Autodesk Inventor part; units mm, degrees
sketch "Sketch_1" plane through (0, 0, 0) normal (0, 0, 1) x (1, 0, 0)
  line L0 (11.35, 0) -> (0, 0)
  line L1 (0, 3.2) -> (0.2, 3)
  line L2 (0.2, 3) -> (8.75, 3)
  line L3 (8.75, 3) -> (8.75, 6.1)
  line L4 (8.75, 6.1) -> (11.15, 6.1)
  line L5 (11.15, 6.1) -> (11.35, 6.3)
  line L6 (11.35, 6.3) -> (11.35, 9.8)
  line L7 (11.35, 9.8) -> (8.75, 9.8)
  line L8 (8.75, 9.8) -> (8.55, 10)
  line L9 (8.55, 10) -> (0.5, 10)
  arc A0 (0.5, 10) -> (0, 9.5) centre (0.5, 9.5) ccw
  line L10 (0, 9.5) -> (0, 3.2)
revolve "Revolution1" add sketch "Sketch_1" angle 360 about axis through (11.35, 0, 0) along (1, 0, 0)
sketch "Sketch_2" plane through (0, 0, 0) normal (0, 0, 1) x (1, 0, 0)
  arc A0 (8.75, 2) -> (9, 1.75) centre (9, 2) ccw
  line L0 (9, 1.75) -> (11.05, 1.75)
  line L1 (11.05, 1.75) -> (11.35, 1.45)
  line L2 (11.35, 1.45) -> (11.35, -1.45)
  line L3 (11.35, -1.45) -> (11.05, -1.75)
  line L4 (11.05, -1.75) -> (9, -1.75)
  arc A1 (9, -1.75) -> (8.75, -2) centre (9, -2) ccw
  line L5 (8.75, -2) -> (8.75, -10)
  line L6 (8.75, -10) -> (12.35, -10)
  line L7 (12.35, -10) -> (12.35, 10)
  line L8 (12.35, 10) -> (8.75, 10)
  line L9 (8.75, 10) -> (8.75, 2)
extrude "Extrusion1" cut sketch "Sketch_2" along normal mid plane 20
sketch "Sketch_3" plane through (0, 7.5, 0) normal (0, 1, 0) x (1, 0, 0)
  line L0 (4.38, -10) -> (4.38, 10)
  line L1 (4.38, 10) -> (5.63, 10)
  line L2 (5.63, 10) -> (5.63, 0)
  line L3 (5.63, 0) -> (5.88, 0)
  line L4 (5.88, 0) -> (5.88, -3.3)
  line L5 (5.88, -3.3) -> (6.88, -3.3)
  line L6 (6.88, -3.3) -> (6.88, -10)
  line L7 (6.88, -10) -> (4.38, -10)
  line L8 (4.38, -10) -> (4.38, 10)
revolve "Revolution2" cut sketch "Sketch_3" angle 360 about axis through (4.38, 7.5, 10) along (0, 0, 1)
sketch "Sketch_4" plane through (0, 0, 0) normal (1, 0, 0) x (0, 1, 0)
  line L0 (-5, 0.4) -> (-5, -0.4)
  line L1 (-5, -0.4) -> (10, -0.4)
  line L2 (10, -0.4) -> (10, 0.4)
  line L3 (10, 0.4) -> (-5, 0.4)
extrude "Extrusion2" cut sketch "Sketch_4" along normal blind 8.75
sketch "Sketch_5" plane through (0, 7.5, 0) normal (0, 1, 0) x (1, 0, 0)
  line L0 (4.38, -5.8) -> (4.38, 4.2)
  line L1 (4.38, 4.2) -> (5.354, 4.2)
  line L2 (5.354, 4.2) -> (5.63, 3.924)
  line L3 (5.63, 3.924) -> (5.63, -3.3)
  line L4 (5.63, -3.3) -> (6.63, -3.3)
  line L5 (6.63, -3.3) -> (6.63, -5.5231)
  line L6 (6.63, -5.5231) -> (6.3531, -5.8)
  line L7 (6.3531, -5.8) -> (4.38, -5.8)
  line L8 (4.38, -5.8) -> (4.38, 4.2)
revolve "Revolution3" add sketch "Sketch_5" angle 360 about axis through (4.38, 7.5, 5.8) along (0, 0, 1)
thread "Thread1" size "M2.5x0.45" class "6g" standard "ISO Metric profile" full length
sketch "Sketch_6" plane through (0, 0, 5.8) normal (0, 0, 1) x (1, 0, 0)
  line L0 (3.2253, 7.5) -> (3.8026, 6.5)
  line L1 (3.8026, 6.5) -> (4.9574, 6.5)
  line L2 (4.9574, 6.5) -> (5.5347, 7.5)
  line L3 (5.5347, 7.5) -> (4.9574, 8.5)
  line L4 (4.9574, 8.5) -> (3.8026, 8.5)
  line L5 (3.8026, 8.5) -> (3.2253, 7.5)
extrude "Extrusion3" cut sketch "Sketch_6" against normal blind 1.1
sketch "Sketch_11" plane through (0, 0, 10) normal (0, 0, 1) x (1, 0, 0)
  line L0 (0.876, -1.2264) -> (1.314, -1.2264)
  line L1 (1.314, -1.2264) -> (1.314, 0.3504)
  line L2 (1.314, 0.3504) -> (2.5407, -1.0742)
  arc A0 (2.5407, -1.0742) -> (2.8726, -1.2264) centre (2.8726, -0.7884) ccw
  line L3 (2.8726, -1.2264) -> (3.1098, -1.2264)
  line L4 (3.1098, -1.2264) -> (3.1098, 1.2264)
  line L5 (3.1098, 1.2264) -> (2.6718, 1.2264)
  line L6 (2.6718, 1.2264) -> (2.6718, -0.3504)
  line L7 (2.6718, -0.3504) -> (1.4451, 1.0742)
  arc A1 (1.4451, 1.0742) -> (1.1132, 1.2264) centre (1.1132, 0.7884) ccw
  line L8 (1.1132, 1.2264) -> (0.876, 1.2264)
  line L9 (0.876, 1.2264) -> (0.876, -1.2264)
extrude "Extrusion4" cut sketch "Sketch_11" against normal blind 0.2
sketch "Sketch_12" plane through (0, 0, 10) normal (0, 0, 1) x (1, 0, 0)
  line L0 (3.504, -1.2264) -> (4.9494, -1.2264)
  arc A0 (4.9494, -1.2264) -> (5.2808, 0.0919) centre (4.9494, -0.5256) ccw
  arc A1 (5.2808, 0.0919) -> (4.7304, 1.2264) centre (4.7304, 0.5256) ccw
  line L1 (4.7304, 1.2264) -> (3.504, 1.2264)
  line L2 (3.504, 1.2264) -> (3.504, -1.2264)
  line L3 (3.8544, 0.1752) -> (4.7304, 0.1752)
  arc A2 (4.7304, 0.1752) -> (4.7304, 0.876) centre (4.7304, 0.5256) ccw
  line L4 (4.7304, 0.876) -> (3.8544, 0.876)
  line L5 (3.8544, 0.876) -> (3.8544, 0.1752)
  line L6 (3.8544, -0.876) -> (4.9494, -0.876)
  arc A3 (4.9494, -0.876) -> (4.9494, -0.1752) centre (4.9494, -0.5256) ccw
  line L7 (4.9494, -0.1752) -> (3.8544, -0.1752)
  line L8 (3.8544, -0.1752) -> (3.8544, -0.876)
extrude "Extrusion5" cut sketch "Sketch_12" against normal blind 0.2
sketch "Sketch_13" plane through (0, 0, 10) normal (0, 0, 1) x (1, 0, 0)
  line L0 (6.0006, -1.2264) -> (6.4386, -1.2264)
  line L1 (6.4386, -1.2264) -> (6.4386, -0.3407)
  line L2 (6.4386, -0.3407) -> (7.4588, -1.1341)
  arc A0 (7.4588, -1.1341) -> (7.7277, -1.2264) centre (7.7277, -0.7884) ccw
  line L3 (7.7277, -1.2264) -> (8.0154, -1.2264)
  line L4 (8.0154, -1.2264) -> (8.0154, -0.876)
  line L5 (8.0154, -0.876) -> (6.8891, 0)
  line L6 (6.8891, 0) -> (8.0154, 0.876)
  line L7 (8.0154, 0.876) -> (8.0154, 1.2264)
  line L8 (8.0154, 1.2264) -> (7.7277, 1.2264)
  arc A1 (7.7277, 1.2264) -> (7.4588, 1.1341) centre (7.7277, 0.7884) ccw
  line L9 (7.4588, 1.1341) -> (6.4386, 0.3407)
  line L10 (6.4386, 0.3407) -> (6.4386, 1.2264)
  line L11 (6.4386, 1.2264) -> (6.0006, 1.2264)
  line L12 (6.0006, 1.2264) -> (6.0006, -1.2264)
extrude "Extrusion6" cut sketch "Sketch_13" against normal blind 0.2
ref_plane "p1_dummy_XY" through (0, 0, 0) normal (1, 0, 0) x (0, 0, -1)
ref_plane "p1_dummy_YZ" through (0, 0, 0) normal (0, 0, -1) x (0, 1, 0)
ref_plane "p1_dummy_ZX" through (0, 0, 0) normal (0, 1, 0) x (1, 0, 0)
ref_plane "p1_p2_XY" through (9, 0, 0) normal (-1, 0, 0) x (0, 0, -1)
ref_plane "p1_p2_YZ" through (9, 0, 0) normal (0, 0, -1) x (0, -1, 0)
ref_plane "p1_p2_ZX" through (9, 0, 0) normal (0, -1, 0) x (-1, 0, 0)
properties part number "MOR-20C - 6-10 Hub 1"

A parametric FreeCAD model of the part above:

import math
import FreeCAD as App
import Part
import Sketcher
from FreeCAD import Vector
Q = App.Units.Quantity


def add_polygon(sketch, points):
    """Adds a closed chain of lines whose ends are joined by coincident constraints."""
    first, n = sketch.GeometryCount, len(points)
    for a, b in zip(points, points[1:] + points[:1]):
        sketch.addGeometry(Part.LineSegment(App.Vector(*a, 0), App.Vector(*b, 0)), False)
    for i in range(n):
        sketch.addConstraint(Sketcher.Constraint("Coincident", first + i, 2, first + (i + 1) % n, 1))

doc = App.newDocument("Part")
params = doc.addObject("Spreadsheet::Sheet", "Params")
for row, (alias, value) in enumerate([
    ("sketch1_radius", "0.5 mm"),
    ("sketch1_width", "2.4 mm"),
    ("sketch1_width2", "2.6 mm"),
    ("sketch1_height", "6.3 mm"),
    ("sketch1_height2", "3.1 mm"),
    ("revolution_angle", "360 deg"),
    ("sketch2_height", "8 mm"),
    ("sketch2_height2", "20 mm"),
    ("sketch2_radius", "0.25 mm"),
    ("sketch2_width", "3.6 mm"),
    ("sketch2_height3", "2.9 mm"),
    ("pocket1_length", "20 mm"),
    ("sketch3_width", "1 mm"),
    ("sketch3_height", "20 mm"),
    ("sketch3_height2", "10 mm"),
    ("sketch3_width2", "2.5 mm"),
    ("sketch3_height3", "6.7 mm"),
    ("groove_angle", "360 deg"),
    ("sketch4_width", "15 mm"),
    ("sketch4_height", "0.8 mm"),
    ("pocket2_length", "8.75 mm"),
    ("sketch5_width", "1 mm"),
    ("sketch5_height", "10 mm"),
    ("revolution2_angle", "360 deg"),
    ("pocket3_length", "1.1 mm"),
    ("sketch7_length", "1.88 mm"),
    ("pocket4_length", "0.2 mm"),
    ("pocket5_length", "0.2 mm"),
    ("pocket6_length", "0.2 mm"),
], start=1):
    params.set(f"A{row}", alias)
    params.set(f"B{row}", "=" + value)
    params.setAlias(f"B{row}", alias)

body = doc.addObject("PartDesign::Body", "Body")

sketch1 = doc.addObject("Sketcher::SketchObject", "Sketch")
body.addObject(sketch1)
sketch1.AttachmentSupport = (doc.XY_Plane, [""])
sketch1.MapMode = "FlatFace"
sketch1.addGeometry([
    Part.LineSegment(Vector(0, 9.5, 0), Vector(0, 3.2, 0)),
    Part.LineSegment(Vector(0, 3.2, 0), Vector(0.2, 3, 0)),
    Part.LineSegment(Vector(0.2, 3, 0), Vector(8.75, 3, 0)),
    Part.LineSegment(Vector(8.75, 3, 0), Vector(8.75, 6.1, 0)),
    Part.LineSegment(Vector(8.75, 6.1, 0), Vector(11.15, 6.1, 0)),
    Part.LineSegment(Vector(11.15, 6.1, 0), Vector(11.35, 6.3, 0)),
    Part.LineSegment(Vector(11.35, 6.3, 0), Vector(11.35, 9.8, 0)),
    Part.LineSegment(Vector(11.35, 9.8, 0), Vector(8.75, 9.8, 0)),
    Part.LineSegment(Vector(8.75, 9.8, 0), Vector(8.55, 10, 0)),
    Part.LineSegment(Vector(8.55, 10, 0), Vector(0.5, 10, 0)),
    Part.ArcOfCircle(Part.Circle(Vector(0.5, 9.5, 0), Vector(0, 0, 1), 0.5), math.radians(90), math.radians(180)),
], False)
sketch1.addConstraint([
    Sketcher.Constraint("Coincident", 0, 2, 1, 1),
    Sketcher.Constraint("Coincident", 1, 2, 2, 1),
    Sketcher.Constraint("Coincident", 2, 2, 3, 1),
    Sketcher.Constraint("Coincident", 3, 2, 4, 1),
    Sketcher.Constraint("Coincident", 4, 2, 5, 1),
    Sketcher.Constraint("Coincident", 5, 2, 6, 1),
    Sketcher.Constraint("Coincident", 6, 2, 7, 1),
    Sketcher.Constraint("Coincident", 7, 2, 8, 1),
    Sketcher.Constraint("Coincident", 8, 2, 9, 1),
    Sketcher.Constraint("Tangent", 9, 2, 10, 1),
    Sketcher.Constraint("Tangent", 10, 2, 0, 1),
    Sketcher.Constraint("Vertical", 0),
    Sketcher.Constraint("Horizontal", 2),
    Sketcher.Constraint("Vertical", 3),
    Sketcher.Constraint("Horizontal", 4),
    Sketcher.Constraint("Vertical", 6),
    Sketcher.Constraint("Horizontal", 7),
    Sketcher.Constraint("Horizontal", 9),
    Sketcher.Constraint("PointOnObject", 0, 2, -2),
    Sketcher.Constraint("Perpendicular", 1, 5),
    Sketcher.Constraint("Perpendicular", 5, 8),
    Sketcher.Constraint("Vertical", 3, 2, 7, 2),
    Sketcher.Constraint("Equal", 1, 5),
    Sketcher.Constraint("Equal", 5, 8),
    Sketcher.Constraint("Radius", 10, 0.5),
    Sketcher.Constraint("Angle", 1, Q("-45 deg")),
    Sketcher.Constraint("DistanceX", 4, 1, 4, 2, 2.4),
    Sketcher.Constraint("DistanceX", 7, 2, 7, 1, 2.6),
    Sketcher.Constraint("DistanceY", 0, 2, 0, 1, 6.3),
    Sketcher.Constraint("DistanceY", 3, 1, 3, 2, 3.1),
    Sketcher.Constraint("DistanceY", -1, 1, 1, 2, 3.0),
    Sketcher.Constraint("DistanceX", 2, 1, 2, 2, 8.55),
])
sketch1.setExpression("Constraints[24]", "Params.sketch1_radius")
sketch1.setExpression("Constraints[26]", "Params.sketch1_width")
sketch1.setExpression("Constraints[27]", "Params.sketch1_width2")
sketch1.setExpression("Constraints[28]", "Params.sketch1_height")
sketch1.setExpression("Constraints[29]", "Params.sketch1_height2")
revolution = doc.addObject("PartDesign::Revolution", "Revolution")
body.addObject(revolution)
revolution.Profile = sketch1
revolution.ReferenceAxis = (sketch1, ["H_Axis"])
revolution.setExpression("Angle", "Params.revolution_angle")

sketch2 = doc.addObject("Sketcher::SketchObject", "Sketch001")
body.addObject(sketch2)
sketch2.AttachmentSupport = (doc.XY_Plane, [""])
sketch2.MapMode = "FlatFace"
sketch2.addGeometry([
    Part.LineSegment(Vector(8.75, 10, 0), Vector(8.75, 2, 0)),
    Part.ArcOfCircle(Part.Circle(Vector(9, 2, 0), Vector(0, 0, 1), 0.25), math.radians(180), math.radians(270)),
    Part.LineSegment(Vector(9, 1.75, 0), Vector(11.05, 1.75, 0)),
    Part.LineSegment(Vector(11.05, 1.75, 0), Vector(11.35, 1.45, 0)),
    Part.LineSegment(Vector(11.35, 1.45, 0), Vector(11.35, -1.45, 0)),
    Part.LineSegment(Vector(11.35, -1.45, 0), Vector(11.05, -1.75, 0)),
    Part.LineSegment(Vector(11.05, -1.75, 0), Vector(9, -1.75, 0)),
    Part.ArcOfCircle(Part.Circle(Vector(9, -2, 0), Vector(0, 0, 1), 0.25), math.radians(90), math.radians(180)),
    Part.LineSegment(Vector(8.75, -2, 0), Vector(8.75, -10, 0)),
    Part.LineSegment(Vector(8.75, -10, 0), Vector(12.35, -10, 0)),
    Part.LineSegment(Vector(12.35, -10, 0), Vector(12.35, 10, 0)),
    Part.LineSegment(Vector(12.35, 10, 0), Vector(8.75, 10, 0)),
], False)
sketch2.addConstraint([
    Sketcher.Constraint("Tangent", 0, 2, 1, 1),
    Sketcher.Constraint("Tangent", 1, 2, 2, 1),
    Sketcher.Constraint("Coincident", 2, 2, 3, 1),
    Sketcher.Constraint("Coincident", 3, 2, 4, 1),
    Sketcher.Constraint("Coincident", 4, 2, 5, 1),
    Sketcher.Constraint("Coincident", 5, 2, 6, 1),
    Sketcher.Constraint("Tangent", 6, 2, 7, 1),
    Sketcher.Constraint("Tangent", 7, 2, 8, 1),
    Sketcher.Constraint("Coincident", 8, 2, 9, 1),
    Sketcher.Constraint("Coincident", 9, 2, 10, 1),
    Sketcher.Constraint("Coincident", 10, 2, 11, 1),
    Sketcher.Constraint("Coincident", 11, 2, 0, 1),
    Sketcher.Constraint("Vertical", 0),
    Sketcher.Constraint("Horizontal", 2),
    Sketcher.Constraint("Vertical", 4),
    Sketcher.Constraint("Horizontal", 6),
    Sketcher.Constraint("Vertical", 8),
    Sketcher.Constraint("Horizontal", 9),
    Sketcher.Constraint("Vertical", 10),
    Sketcher.Constraint("Horizontal", 11),
    Sketcher.Constraint("Equal", 1, 7),
    Sketcher.Constraint("Symmetric", 1, 3, 7, 3, -1),
    Sketcher.Constraint("Perpendicular", 3, 5),
    Sketcher.Constraint("Vertical", 2, 2, 5, 2),
    Sketcher.Constraint("Equal", 0, 8),
    Sketcher.Constraint("Equal", 3, 5),
    Sketcher.Constraint("DistanceY", 0, 2, 0, 1, 8.0),
    Sketcher.Constraint("DistanceY", 10, 1, 10, 2, 20.0),
    Sketcher.Constraint("Radius", 1, 0.25),
    Sketcher.Constraint("DistanceX", 9, 1, 9, 2, 3.6),
    Sketcher.Constraint("DistanceY", 4, 2, 4, 1, 2.9),
    Sketcher.Constraint("DistanceX", -1, 1, 1, 3, 9.0),
    Sketcher.Constraint("DistanceX", 4, 2, 9, 2, 1.0),
])
sketch2.setExpression("Constraints[26]", "Params.sketch2_height")
sketch2.setExpression("Constraints[27]", "Params.sketch2_height2")
sketch2.setExpression("Constraints[28]", "Params.sketch2_radius")
sketch2.setExpression("Constraints[29]", "Params.sketch2_width")
sketch2.setExpression("Constraints[30]", "Params.sketch2_height3")
pocket1 = doc.addObject("PartDesign::Pocket", "Pocket")
body.addObject(pocket1)
pocket1.Profile = sketch2
pocket1.setExpression("Length", "Params.pocket1_length")
pocket1.Midplane = True

sketch3 = doc.addObject("Sketcher::SketchObject", "Sketch002")
body.addObject(sketch3)
sketch3.AttachmentSupport = (doc.XZ_Plane, [""])
sketch3.MapMode = "FlatFace"
sketch3.AttachmentOffset = App.Placement(Vector(0, 0, -7.5), App.Rotation())
add_polygon(sketch3, [(4.38, -10), (4.38, 10), (6.88, 10), (6.88, 3.3), (5.88, 3.3), (5.88, 0), (5.63, 0), (5.63, -10)])
sketch3.addGeometry(Part.LineSegment(Vector(4.38, -10, 0), Vector(4.38, 10, 0)), True)
sketch3.addConstraint([
    Sketcher.Constraint("Vertical", 0),
    Sketcher.Constraint("Horizontal", 1),
    Sketcher.Constraint("Vertical", 2),
    Sketcher.Constraint("Horizontal", 3),
    Sketcher.Constraint("Vertical", 4),
    Sketcher.Constraint("Horizontal", 5),
    Sketcher.Constraint("Vertical", 6),
    Sketcher.Constraint("Horizontal", 7),
    Sketcher.Constraint("Vertical", 8),
    Sketcher.Constraint("Coincident", 8, 1, 7, 2),
    Sketcher.Constraint("PointOnObject", 4, 2, -1),
    Sketcher.Constraint("Horizontal", 1, 2, 8, 2),
    Sketcher.Constraint("DistanceX", 3, 2, 3, 1, 1.0),
    Sketcher.Constraint("DistanceY", 0, 1, 0, 2, 20.0),
    Sketcher.Constraint("DistanceY", 6, 2, 6, 1, 10.0),
    Sketcher.Constraint("DistanceX", 1, 1, 1, 2, 2.5),
    Sketcher.Constraint("DistanceY", 2, 2, 2, 1, 6.7),
    Sketcher.Constraint("DistanceX", 5, 2, 5, 1, 0.25),
    Sketcher.Constraint("DistanceX", -1, 1, 0, 2, 4.38),
])
sketch3.setExpression("Constraints[20]", "Params.sketch3_width")
sketch3.setExpression("Constraints[21]", "Params.sketch3_height")
sketch3.setExpression("Constraints[22]", "Params.sketch3_height2")
sketch3.setExpression("Constraints[23]", "Params.sketch3_width2")
sketch3.setExpression("Constraints[24]", "Params.sketch3_height3")
groove = doc.addObject("PartDesign::Groove", "Groove")
body.addObject(groove)
groove.Profile = sketch3
groove.ReferenceAxis = (sketch3, ["Axis0"])
groove.setExpression("Angle", "Params.groove_angle")

sketch4 = doc.addObject("Sketcher::SketchObject", "Sketch003")
body.addObject(sketch4)
sketch4.AttachmentSupport = (doc.YZ_Plane, [""])
sketch4.MapMode = "FlatFace"
add_polygon(sketch4, [(10, 0.4), (-5, 0.4), (-5, -0.4), (10, -0.4)])
sketch4.addConstraint([
    Sketcher.Constraint("Horizontal", 0),
    Sketcher.Constraint("Vertical", 1),
    Sketcher.Constraint("Horizontal", 2),
    Sketcher.Constraint("Vertical", 3),
    Sketcher.Constraint("DistanceX", 0, 2, 0, 1, 15.0),
    Sketcher.Constraint("DistanceY", 1, 2, 1, 1, 0.8),
    Sketcher.Constraint("DistanceX", 0, 2, -1, 1, 5.0),
    Sketcher.Constraint("DistanceY", -1, 1, 0, 2, 0.4),
])
sketch4.setExpression("Constraints[8]", "Params.sketch4_width")
sketch4.setExpression("Constraints[9]", "Params.sketch4_height")
pocket2 = doc.addObject("PartDesign::Pocket", "Pocket001")
body.addObject(pocket2)
pocket2.Profile = sketch4
pocket2.setExpression("Length", "Params.pocket2_length")
pocket2.Reversed = True

sketch5 = doc.addObject("Sketcher::SketchObject", "Sketch004")
body.addObject(sketch5)
sketch5.AttachmentSupport = (doc.XZ_Plane, [""])
sketch5.MapMode = "FlatFace"
sketch5.AttachmentOffset = App.Placement(Vector(0, 0, -7.5), App.Rotation())
add_polygon(sketch5, [(4.38, -4.2), (4.38, 5.8), (6.35, 5.8), (6.63, 5.52), (6.63, 3.3), (5.63, 3.3), (5.63, -3.92), (5.35, -4.2)])
sketch5.addGeometry(Part.LineSegment(Vector(4.38, -4.2, 0), Vector(4.38, 5.8, 0)), True)
sketch5.addConstraint([
    Sketcher.Constraint("Vertical", 0),
    Sketcher.Constraint("Horizontal", 1),
    Sketcher.Constraint("Vertical", 3),
    Sketcher.Constraint("Horizontal", 4),
    Sketcher.Constraint("Vertical", 5),
    Sketcher.Constraint("Horizontal", 7),
    Sketcher.Constraint("Vertical", 8),
    Sketcher.Constraint("Coincident", 8, 1, 7, 2),
    Sketcher.Constraint("Perpendicular", 2, 6),
    Sketcher.Constraint("Horizontal", 1, 2, 8, 2),
    Sketcher.Constraint("DistanceX", 4, 2, 4, 1, 1.0),
    Sketcher.Constraint("DistanceY", 0, 1, 0, 2, 10.0),
    Sketcher.Constraint("Angle", 2, Q("-45 deg")),
    Sketcher.Constraint("DistanceY", -1, 1, 0, 2, 5.8),
    Sketcher.Constraint("DistanceY", -1, 1, 3, 2, 3.3),
    Sketcher.Constraint("DistanceX", 1, 1, 1, 2, 1.973),
    Sketcher.Constraint("DistanceX", 7, 2, 7, 1, 0.974),
    Sketcher.Constraint("DistanceY", 3, 2, 3, 1, 2.223),
    Sketcher.Constraint("DistanceX", -1, 1, 0, 2, 4.38),
])
sketch5.setExpression("Constraints[18]", "Params.sketch5_width")
sketch5.setExpression("Constraints[19]", "Params.sketch5_height")
revolution2 = doc.addObject("PartDesign::Revolution", "Revolution001")
body.addObject(revolution2)
revolution2.Profile = sketch5
revolution2.ReferenceAxis = (sketch5, ["Axis0"])
revolution2.setExpression("Angle", "Params.revolution2_angle")

sketch6 = doc.addObject("Sketcher::SketchObject", "Sketch005")
body.addObject(sketch6)
sketch6.AttachmentSupport = (doc.XY_Plane, [""])
sketch6.MapMode = "FlatFace"
sketch6.AttachmentOffset = App.Placement(Vector(0, 0, 5.8), App.Rotation())
add_polygon(sketch6, [(3.8, 8.5), (3.2, 7.5), (3.8, 6.5), (5, 6.5), (5.5, 7.5), (5, 8.5)])
sketch6.addConstraint([
    Sketcher.Constraint("Horizontal", 2),
    Sketcher.Constraint("Horizontal", 5),
    Sketcher.Constraint("Parallel", 0, 3),
    Sketcher.Constraint("Parallel", 1, 4),
    Sketcher.Constraint("Horizontal", 0, 2, 3, 2),
    Sketcher.Constraint("Vertical", 2, 2, 4, 2),
    Sketcher.Constraint("Vertical", 1, 2, 5, 2),
    Sketcher.Constraint("DistanceY", 1, 2, 0, 2, 1.0),
    Sketcher.Constraint("DistanceY", -1, 1, 0, 2, 7.5),
    Sketcher.Constraint("DistanceX", 2, 1, 2, 2, 1.1548),
    Sketcher.Constraint("DistanceX", 0, 2, 2, 2, 1.732),
    Sketcher.Constraint("DistanceX", -1, 1, 0, 2, 3.2253),
])
pocket3 = doc.addObject("PartDesign::Pocket", "Pocket002")
body.addObject(pocket3)
pocket3.Profile = sketch6
pocket3.setExpression("Length", "Params.pocket3_length")

sketch7 = doc.addObject("Sketcher::SketchObject", "Sketch006")
body.addObject(sketch7)
sketch7.AttachmentSupport = (doc.XY_Plane, [""])
sketch7.MapMode = "FlatFace"
sketch7.AttachmentOffset = App.Placement(Vector(0, 0, 10), App.Rotation())
sketch7.addGeometry([
    Part.LineSegment(Vector(0.88, 1.23, 0), Vector(0.88, -1.23, 0)),
    Part.LineSegment(Vector(0.88, -1.23, 0), Vector(1.31, -1.23, 0)),
    Part.LineSegment(Vector(1.31, -1.23, 0), Vector(1.31, 0.35, 0)),
    Part.LineSegment(Vector(1.31, 0.35, 0), Vector(2.54, -1.07, 0)),
    Part.ArcOfCircle(Part.Circle(Vector(2.87, -0.79, 0), Vector(0, 0, 1), 0.44), math.radians(-139), math.radians(-90)),
    Part.LineSegment(Vector(2.87, -1.23, 0), Vector(3.11, -1.23, 0)),
    Part.LineSegment(Vector(3.11, -1.23, 0), Vector(3.11, 1.23, 0)),
    Part.LineSegment(Vector(3.11, 1.23, 0), Vector(2.67, 1.23, 0)),
    Part.LineSegment(Vector(2.67, 1.23, 0), Vector(2.67, -0.35, 0)),
    Part.LineSegment(Vector(2.67, -0.35, 0), Vector(1.45, 1.07, 0)),
    Part.ArcOfCircle(Part.Circle(Vector(1.11, 0.79, 0), Vector(0, 0, 1), 0.44), math.radians(41), math.radians(90)),
    Part.LineSegment(Vector(1.11, 1.23, 0), Vector(0.88, 1.23, 0)),
], False)
sketch7.addConstraint([
    Sketcher.Constraint("Coincident", 0, 2, 1, 1),
    Sketcher.Constraint("Coincident", 1, 2, 2, 1),
    Sketcher.Constraint("Coincident", 2, 2, 3, 1),
    Sketcher.Constraint("Tangent", 3, 2, 4, 1),
    Sketcher.Constraint("Tangent", 4, 2, 5, 1),
    Sketcher.Constraint("Coincident", 5, 2, 6, 1),
    Sketcher.Constraint("Coincident", 6, 2, 7, 1),
    Sketcher.Constraint("Coincident", 7, 2, 8, 1),
    Sketcher.Constraint("Coincident", 8, 2, 9, 1),
    Sketcher.Constraint("Tangent", 9, 2, 10, 1),
    Sketcher.Constraint("Tangent", 10, 2, 11, 1),
    Sketcher.Constraint("Coincident", 11, 2, 0, 1),
    Sketcher.Constraint("Vertical", 0),
    Sketcher.Constraint("Horizontal", 1),
    Sketcher.Constraint("Vertical", 2),
    Sketcher.Constraint("Horizontal", 5),
    Sketcher.Constraint("Vertical", 6),
    Sketcher.Constraint("Horizontal", 7),
    Sketcher.Constraint("Vertical", 8),
    Sketcher.Constraint("Horizontal", 11),
    Sketcher.Constraint("Equal", 4, 10),
    Sketcher.Constraint("Parallel", 3, 9),
    Sketcher.Constraint("Horizontal", 1, 2, 4, 2),
    Sketcher.Constraint("Horizontal", 7, 2, 10, 2),
    Sketcher.Constraint("Equal", 1, 7),
    Sketcher.Constraint("Equal", 5, 11),
    Sketcher.Constraint("Radius", 4, 0.438),
    Sketcher.Constraint("Distance", 3, 1.88),
    Sketcher.Constraint("DistanceX", 1, 1, 1, 2, 0.438),
    Sketcher.Constraint("DistanceX", 5, 1, 5, 2, 0.2372),
    Sketcher.Constraint("DistanceY", 0, 2, 0, 1, 2.4528),
    Sketcher.Constraint("DistanceY", 2, 1, 2, 2, 1.5768),
    Sketcher.Constraint("DistanceX", -1, 1, 0, 2, 0.876),
    Sketcher.Constraint("DistanceY", 4, 3, -1, 1, 0.7884),
])
sketch7.setExpression("Constraints[27]", "Params.sketch7_length")
pocket4 = doc.addObject("PartDesign::Pocket", "Pocket003")
body.addObject(pocket4)
pocket4.Profile = sketch7
pocket4.setExpression("Length", "Params.pocket4_length")

sketch8 = doc.addObject("Sketcher::SketchObject", "Sketch007")
body.addObject(sketch8)
sketch8.AttachmentSupport = (doc.XY_Plane, [""])
sketch8.MapMode = "FlatFace"
sketch8.AttachmentOffset = App.Placement(Vector(0, 0, 10), App.Rotation())
sketch8.addGeometry([
    Part.LineSegment(Vector(3.5, 1.23, 0), Vector(3.5, -1.23, 0)),
    Part.LineSegment(Vector(3.5, -1.23, 0), Vector(4.95, -1.23, 0)),
    Part.ArcOfCircle(Part.Circle(Vector(4.95, -0.53, 0), Vector(0, 0, 1), 0.7), math.radians(-90), math.radians(62)),
    Part.ArcOfCircle(Part.Circle(Vector(4.73, 0.53, 0), Vector(0, 0, 1), 0.7), math.radians(-38), math.radians(90)),
    Part.LineSegment(Vector(4.73, 1.23, 0), Vector(3.5, 1.23, 0)),
    Part.LineSegment(Vector(4.95, -0.88, 0), Vector(3.85, -0.88, 0)),
    Part.LineSegment(Vector(3.85, -0.88, 0), Vector(3.85, -0.18, 0)),
    Part.LineSegment(Vector(3.85, -0.18, 0), Vector(4.95, -0.18, 0)),
    Part.ArcOfCircle(Part.Circle(Vector(4.95, -0.53, 0), Vector(0, 0, 1), 0.35), math.radians(-90), math.radians(90)),
    Part.LineSegment(Vector(4.73, 0.18, 0), Vector(3.85, 0.18, 0)),
    Part.LineSegment(Vector(3.85, 0.18, 0), Vector(3.85, 0.88, 0)),
    Part.LineSegment(Vector(3.85, 0.88, 0), Vector(4.73, 0.88, 0)),
    Part.ArcOfCircle(Part.Circle(Vector(4.73, 0.53, 0), Vector(0, 0, 1), 0.35), math.radians(-90), math.radians(90)),
], False)
sketch8.addConstraint([
    Sketcher.Constraint("Coincident", 0, 2, 1, 1),
    Sketcher.Constraint("Tangent", 1, 2, 2, 1),
    Sketcher.Constraint("Coincident", 2, 2, 3, 1),
    Sketcher.Constraint("Tangent", 3, 2, 4, 1),
    Sketcher.Constraint("Coincident", 4, 2, 0, 1),
    Sketcher.Constraint("Coincident", 5, 2, 6, 1),
    Sketcher.Constraint("Coincident", 6, 2, 7, 1),
    Sketcher.Constraint("Tangent", 7, 2, 8, 2),
    Sketcher.Constraint("Tangent", 8, 1, 5, 1),
    Sketcher.Constraint("Coincident", 9, 2, 10, 1),
    Sketcher.Constraint("Coincident", 10, 2, 11, 1),
    Sketcher.Constraint("Tangent", 11, 2, 12, 2),
    Sketcher.Constraint("Tangent", 12, 1, 9, 1),
    Sketcher.Constraint("Vertical", 0),
    Sketcher.Constraint("Horizontal", 1),
    Sketcher.Constraint("Horizontal", 4),
    Sketcher.Constraint("Horizontal", 5),
    Sketcher.Constraint("Vertical", 6),
    Sketcher.Constraint("Horizontal", 7),
    Sketcher.Constraint("Horizontal", 9),
    Sketcher.Constraint("Vertical", 10),
    Sketcher.Constraint("Horizontal", 11),
    Sketcher.Constraint("Coincident", 8, 3, 2, 3),
    Sketcher.Constraint("Coincident", 12, 3, 3, 3),
    Sketcher.Constraint("Equal", 2, 3),
    Sketcher.Constraint("Equal", 8, 12),
    Sketcher.Constraint("Symmetric", 6, 2, 9, 2, -1),
    Sketcher.Constraint("Radius", 2, 0.7008),
    Sketcher.Constraint("Radius", 8, 0.3504),
    Sketcher.Constraint("DistanceX", 5, 2, 5, 1, 1.095),
    Sketcher.Constraint("DistanceX", 9, 2, 9, 1, 0.876),
    Sketcher.Constraint("DistanceX", 1, 1, 1, 2, 1.4454),
    Sketcher.Constraint("DistanceY", 0, 2, 0, 1, 2.4528),
    Sketcher.Constraint("DistanceX", -1, 1, 0, 2, 3.504),
])
pocket5 = doc.addObject("PartDesign::Pocket", "Pocket004")
body.addObject(pocket5)
pocket5.Profile = sketch8
pocket5.setExpression("Length", "Params.pocket5_length")

sketch9 = doc.addObject("Sketcher::SketchObject", "Sketch008")
body.addObject(sketch9)
sketch9.AttachmentSupport = (doc.XY_Plane, [""])
sketch9.MapMode = "FlatFace"
sketch9.AttachmentOffset = App.Placement(Vector(0, 0, 10), App.Rotation())
sketch9.addGeometry([
    Part.LineSegment(Vector(6, 1.23, 0), Vector(6, -1.23, 0)),
    Part.LineSegment(Vector(6, -1.23, 0), Vector(6.44, -1.23, 0)),
    Part.LineSegment(Vector(6.44, -1.23, 0), Vector(6.44, -0.34, 0)),
    Part.LineSegment(Vector(6.44, -0.34, 0), Vector(7.46, -1.13, 0)),
    Part.ArcOfCircle(Part.Circle(Vector(7.73, -0.79, 0), Vector(0, 0, 1), 0.44), math.radians(-128), math.radians(-90)),
    Part.LineSegment(Vector(7.73, -1.23, 0), Vector(8.02, -1.23, 0)),
    Part.LineSegment(Vector(8.02, -1.23, 0), Vector(8.02, -0.88, 0)),
    Part.LineSegment(Vector(8.02, -0.88, 0), Vector(6.89, 0, 0)),
    Part.LineSegment(Vector(6.89, 0, 0), Vector(8.02, 0.88, 0)),
    Part.LineSegment(Vector(8.02, 0.88, 0), Vector(8.02, 1.23, 0)),
    Part.LineSegment(Vector(8.02, 1.23, 0), Vector(7.73, 1.23, 0)),
    Part.ArcOfCircle(Part.Circle(Vector(7.73, 0.79, 0), Vector(0, 0, 1), 0.44), math.radians(90), math.radians(128)),
    Part.LineSegment(Vector(7.46, 1.13, 0), Vector(6.44, 0.34, 0)),
    Part.LineSegment(Vector(6.44, 0.34, 0), Vector(6.44, 1.23, 0)),
    Part.LineSegment(Vector(6.44, 1.23, 0), Vector(6, 1.23, 0)),
], False)
sketch9.addConstraint([
    Sketcher.Constraint("Coincident", 0, 2, 1, 1),
    Sketcher.Constraint("Coincident", 1, 2, 2, 1),
    Sketcher.Constraint("Coincident", 2, 2, 3, 1),
    Sketcher.Constraint("Tangent", 3, 2, 4, 1),
    Sketcher.Constraint("Tangent", 4, 2, 5, 1),
    Sketcher.Constraint("Coincident", 5, 2, 6, 1),
    Sketcher.Constraint("Coincident", 6, 2, 7, 1),
    Sketcher.Constraint("Coincident", 7, 2, 8, 1),
    Sketcher.Constraint("Coincident", 8, 2, 9, 1),
    Sketcher.Constraint("Coincident", 9, 2, 10, 1),
    Sketcher.Constraint("Tangent", 10, 2, 11, 1),
    Sketcher.Constraint("Tangent", 11, 2, 12, 1),
    Sketcher.Constraint("Coincident", 12, 2, 13, 1),
    Sketcher.Constraint("Coincident", 13, 2, 14, 1),
    Sketcher.Constraint("Coincident", 14, 2, 0, 1),
    Sketcher.Constraint("Vertical", 0),
    Sketcher.Constraint("Horizontal", 1),
    Sketcher.Constraint("Vertical", 2),
    Sketcher.Constraint("Horizontal", 5),
    Sketcher.Constraint("Vertical", 6),
    Sketcher.Constraint("Vertical", 9),
    Sketcher.Constraint("Horizontal", 10),
    Sketcher.Constraint("Vertical", 13),
    Sketcher.Constraint("Horizontal", 14),
    Sketcher.Constraint("Equal", 4, 11),
    Sketcher.Constraint("Symmetric", 4, 3, 11, 3, -1),
    Sketcher.Constraint("Symmetric", 6, 2, 8, 2, -1),
    Sketcher.Constraint("Symmetric", 2, 2, 12, 2, -1),
    Sketcher.Constraint("PointOnObject", 7, 2, -1),
    Sketcher.Constraint("Parallel", 3, 7),
    Sketcher.Constraint("Horizontal", 1, 2, 4, 2),
    Sketcher.Constraint("Horizontal", 10, 2, 13, 2),
    Sketcher.Constraint("Radius", 4, 0.438),
    Sketcher.Constraint("DistanceX", 1, 1, 1, 2, 0.438),
    Sketcher.Constraint("DistanceX", 5, 1, 5, 2, 0.2877),
    Sketcher.Constraint("DistanceY", 0, 2, 0, 1, 2.4528),
    Sketcher.Constraint("DistanceY", 2, 1, 2, 2, 0.8857),
    Sketcher.Constraint("DistanceY", 6, 1, 6, 2, 0.3504),
    Sketcher.Constraint("DistanceY", 3, 2, -1, 1, 1.134),
    Sketcher.Constraint("DistanceX", -1, 1, 7, 2, 6.889),
])
pocket6 = doc.addObject("PartDesign::Pocket", "Pocket005")
body.addObject(pocket6)
pocket6.Profile = sketch9
pocket6.setExpression("Length", "Params.pocket6_length")

doc.recompute()
